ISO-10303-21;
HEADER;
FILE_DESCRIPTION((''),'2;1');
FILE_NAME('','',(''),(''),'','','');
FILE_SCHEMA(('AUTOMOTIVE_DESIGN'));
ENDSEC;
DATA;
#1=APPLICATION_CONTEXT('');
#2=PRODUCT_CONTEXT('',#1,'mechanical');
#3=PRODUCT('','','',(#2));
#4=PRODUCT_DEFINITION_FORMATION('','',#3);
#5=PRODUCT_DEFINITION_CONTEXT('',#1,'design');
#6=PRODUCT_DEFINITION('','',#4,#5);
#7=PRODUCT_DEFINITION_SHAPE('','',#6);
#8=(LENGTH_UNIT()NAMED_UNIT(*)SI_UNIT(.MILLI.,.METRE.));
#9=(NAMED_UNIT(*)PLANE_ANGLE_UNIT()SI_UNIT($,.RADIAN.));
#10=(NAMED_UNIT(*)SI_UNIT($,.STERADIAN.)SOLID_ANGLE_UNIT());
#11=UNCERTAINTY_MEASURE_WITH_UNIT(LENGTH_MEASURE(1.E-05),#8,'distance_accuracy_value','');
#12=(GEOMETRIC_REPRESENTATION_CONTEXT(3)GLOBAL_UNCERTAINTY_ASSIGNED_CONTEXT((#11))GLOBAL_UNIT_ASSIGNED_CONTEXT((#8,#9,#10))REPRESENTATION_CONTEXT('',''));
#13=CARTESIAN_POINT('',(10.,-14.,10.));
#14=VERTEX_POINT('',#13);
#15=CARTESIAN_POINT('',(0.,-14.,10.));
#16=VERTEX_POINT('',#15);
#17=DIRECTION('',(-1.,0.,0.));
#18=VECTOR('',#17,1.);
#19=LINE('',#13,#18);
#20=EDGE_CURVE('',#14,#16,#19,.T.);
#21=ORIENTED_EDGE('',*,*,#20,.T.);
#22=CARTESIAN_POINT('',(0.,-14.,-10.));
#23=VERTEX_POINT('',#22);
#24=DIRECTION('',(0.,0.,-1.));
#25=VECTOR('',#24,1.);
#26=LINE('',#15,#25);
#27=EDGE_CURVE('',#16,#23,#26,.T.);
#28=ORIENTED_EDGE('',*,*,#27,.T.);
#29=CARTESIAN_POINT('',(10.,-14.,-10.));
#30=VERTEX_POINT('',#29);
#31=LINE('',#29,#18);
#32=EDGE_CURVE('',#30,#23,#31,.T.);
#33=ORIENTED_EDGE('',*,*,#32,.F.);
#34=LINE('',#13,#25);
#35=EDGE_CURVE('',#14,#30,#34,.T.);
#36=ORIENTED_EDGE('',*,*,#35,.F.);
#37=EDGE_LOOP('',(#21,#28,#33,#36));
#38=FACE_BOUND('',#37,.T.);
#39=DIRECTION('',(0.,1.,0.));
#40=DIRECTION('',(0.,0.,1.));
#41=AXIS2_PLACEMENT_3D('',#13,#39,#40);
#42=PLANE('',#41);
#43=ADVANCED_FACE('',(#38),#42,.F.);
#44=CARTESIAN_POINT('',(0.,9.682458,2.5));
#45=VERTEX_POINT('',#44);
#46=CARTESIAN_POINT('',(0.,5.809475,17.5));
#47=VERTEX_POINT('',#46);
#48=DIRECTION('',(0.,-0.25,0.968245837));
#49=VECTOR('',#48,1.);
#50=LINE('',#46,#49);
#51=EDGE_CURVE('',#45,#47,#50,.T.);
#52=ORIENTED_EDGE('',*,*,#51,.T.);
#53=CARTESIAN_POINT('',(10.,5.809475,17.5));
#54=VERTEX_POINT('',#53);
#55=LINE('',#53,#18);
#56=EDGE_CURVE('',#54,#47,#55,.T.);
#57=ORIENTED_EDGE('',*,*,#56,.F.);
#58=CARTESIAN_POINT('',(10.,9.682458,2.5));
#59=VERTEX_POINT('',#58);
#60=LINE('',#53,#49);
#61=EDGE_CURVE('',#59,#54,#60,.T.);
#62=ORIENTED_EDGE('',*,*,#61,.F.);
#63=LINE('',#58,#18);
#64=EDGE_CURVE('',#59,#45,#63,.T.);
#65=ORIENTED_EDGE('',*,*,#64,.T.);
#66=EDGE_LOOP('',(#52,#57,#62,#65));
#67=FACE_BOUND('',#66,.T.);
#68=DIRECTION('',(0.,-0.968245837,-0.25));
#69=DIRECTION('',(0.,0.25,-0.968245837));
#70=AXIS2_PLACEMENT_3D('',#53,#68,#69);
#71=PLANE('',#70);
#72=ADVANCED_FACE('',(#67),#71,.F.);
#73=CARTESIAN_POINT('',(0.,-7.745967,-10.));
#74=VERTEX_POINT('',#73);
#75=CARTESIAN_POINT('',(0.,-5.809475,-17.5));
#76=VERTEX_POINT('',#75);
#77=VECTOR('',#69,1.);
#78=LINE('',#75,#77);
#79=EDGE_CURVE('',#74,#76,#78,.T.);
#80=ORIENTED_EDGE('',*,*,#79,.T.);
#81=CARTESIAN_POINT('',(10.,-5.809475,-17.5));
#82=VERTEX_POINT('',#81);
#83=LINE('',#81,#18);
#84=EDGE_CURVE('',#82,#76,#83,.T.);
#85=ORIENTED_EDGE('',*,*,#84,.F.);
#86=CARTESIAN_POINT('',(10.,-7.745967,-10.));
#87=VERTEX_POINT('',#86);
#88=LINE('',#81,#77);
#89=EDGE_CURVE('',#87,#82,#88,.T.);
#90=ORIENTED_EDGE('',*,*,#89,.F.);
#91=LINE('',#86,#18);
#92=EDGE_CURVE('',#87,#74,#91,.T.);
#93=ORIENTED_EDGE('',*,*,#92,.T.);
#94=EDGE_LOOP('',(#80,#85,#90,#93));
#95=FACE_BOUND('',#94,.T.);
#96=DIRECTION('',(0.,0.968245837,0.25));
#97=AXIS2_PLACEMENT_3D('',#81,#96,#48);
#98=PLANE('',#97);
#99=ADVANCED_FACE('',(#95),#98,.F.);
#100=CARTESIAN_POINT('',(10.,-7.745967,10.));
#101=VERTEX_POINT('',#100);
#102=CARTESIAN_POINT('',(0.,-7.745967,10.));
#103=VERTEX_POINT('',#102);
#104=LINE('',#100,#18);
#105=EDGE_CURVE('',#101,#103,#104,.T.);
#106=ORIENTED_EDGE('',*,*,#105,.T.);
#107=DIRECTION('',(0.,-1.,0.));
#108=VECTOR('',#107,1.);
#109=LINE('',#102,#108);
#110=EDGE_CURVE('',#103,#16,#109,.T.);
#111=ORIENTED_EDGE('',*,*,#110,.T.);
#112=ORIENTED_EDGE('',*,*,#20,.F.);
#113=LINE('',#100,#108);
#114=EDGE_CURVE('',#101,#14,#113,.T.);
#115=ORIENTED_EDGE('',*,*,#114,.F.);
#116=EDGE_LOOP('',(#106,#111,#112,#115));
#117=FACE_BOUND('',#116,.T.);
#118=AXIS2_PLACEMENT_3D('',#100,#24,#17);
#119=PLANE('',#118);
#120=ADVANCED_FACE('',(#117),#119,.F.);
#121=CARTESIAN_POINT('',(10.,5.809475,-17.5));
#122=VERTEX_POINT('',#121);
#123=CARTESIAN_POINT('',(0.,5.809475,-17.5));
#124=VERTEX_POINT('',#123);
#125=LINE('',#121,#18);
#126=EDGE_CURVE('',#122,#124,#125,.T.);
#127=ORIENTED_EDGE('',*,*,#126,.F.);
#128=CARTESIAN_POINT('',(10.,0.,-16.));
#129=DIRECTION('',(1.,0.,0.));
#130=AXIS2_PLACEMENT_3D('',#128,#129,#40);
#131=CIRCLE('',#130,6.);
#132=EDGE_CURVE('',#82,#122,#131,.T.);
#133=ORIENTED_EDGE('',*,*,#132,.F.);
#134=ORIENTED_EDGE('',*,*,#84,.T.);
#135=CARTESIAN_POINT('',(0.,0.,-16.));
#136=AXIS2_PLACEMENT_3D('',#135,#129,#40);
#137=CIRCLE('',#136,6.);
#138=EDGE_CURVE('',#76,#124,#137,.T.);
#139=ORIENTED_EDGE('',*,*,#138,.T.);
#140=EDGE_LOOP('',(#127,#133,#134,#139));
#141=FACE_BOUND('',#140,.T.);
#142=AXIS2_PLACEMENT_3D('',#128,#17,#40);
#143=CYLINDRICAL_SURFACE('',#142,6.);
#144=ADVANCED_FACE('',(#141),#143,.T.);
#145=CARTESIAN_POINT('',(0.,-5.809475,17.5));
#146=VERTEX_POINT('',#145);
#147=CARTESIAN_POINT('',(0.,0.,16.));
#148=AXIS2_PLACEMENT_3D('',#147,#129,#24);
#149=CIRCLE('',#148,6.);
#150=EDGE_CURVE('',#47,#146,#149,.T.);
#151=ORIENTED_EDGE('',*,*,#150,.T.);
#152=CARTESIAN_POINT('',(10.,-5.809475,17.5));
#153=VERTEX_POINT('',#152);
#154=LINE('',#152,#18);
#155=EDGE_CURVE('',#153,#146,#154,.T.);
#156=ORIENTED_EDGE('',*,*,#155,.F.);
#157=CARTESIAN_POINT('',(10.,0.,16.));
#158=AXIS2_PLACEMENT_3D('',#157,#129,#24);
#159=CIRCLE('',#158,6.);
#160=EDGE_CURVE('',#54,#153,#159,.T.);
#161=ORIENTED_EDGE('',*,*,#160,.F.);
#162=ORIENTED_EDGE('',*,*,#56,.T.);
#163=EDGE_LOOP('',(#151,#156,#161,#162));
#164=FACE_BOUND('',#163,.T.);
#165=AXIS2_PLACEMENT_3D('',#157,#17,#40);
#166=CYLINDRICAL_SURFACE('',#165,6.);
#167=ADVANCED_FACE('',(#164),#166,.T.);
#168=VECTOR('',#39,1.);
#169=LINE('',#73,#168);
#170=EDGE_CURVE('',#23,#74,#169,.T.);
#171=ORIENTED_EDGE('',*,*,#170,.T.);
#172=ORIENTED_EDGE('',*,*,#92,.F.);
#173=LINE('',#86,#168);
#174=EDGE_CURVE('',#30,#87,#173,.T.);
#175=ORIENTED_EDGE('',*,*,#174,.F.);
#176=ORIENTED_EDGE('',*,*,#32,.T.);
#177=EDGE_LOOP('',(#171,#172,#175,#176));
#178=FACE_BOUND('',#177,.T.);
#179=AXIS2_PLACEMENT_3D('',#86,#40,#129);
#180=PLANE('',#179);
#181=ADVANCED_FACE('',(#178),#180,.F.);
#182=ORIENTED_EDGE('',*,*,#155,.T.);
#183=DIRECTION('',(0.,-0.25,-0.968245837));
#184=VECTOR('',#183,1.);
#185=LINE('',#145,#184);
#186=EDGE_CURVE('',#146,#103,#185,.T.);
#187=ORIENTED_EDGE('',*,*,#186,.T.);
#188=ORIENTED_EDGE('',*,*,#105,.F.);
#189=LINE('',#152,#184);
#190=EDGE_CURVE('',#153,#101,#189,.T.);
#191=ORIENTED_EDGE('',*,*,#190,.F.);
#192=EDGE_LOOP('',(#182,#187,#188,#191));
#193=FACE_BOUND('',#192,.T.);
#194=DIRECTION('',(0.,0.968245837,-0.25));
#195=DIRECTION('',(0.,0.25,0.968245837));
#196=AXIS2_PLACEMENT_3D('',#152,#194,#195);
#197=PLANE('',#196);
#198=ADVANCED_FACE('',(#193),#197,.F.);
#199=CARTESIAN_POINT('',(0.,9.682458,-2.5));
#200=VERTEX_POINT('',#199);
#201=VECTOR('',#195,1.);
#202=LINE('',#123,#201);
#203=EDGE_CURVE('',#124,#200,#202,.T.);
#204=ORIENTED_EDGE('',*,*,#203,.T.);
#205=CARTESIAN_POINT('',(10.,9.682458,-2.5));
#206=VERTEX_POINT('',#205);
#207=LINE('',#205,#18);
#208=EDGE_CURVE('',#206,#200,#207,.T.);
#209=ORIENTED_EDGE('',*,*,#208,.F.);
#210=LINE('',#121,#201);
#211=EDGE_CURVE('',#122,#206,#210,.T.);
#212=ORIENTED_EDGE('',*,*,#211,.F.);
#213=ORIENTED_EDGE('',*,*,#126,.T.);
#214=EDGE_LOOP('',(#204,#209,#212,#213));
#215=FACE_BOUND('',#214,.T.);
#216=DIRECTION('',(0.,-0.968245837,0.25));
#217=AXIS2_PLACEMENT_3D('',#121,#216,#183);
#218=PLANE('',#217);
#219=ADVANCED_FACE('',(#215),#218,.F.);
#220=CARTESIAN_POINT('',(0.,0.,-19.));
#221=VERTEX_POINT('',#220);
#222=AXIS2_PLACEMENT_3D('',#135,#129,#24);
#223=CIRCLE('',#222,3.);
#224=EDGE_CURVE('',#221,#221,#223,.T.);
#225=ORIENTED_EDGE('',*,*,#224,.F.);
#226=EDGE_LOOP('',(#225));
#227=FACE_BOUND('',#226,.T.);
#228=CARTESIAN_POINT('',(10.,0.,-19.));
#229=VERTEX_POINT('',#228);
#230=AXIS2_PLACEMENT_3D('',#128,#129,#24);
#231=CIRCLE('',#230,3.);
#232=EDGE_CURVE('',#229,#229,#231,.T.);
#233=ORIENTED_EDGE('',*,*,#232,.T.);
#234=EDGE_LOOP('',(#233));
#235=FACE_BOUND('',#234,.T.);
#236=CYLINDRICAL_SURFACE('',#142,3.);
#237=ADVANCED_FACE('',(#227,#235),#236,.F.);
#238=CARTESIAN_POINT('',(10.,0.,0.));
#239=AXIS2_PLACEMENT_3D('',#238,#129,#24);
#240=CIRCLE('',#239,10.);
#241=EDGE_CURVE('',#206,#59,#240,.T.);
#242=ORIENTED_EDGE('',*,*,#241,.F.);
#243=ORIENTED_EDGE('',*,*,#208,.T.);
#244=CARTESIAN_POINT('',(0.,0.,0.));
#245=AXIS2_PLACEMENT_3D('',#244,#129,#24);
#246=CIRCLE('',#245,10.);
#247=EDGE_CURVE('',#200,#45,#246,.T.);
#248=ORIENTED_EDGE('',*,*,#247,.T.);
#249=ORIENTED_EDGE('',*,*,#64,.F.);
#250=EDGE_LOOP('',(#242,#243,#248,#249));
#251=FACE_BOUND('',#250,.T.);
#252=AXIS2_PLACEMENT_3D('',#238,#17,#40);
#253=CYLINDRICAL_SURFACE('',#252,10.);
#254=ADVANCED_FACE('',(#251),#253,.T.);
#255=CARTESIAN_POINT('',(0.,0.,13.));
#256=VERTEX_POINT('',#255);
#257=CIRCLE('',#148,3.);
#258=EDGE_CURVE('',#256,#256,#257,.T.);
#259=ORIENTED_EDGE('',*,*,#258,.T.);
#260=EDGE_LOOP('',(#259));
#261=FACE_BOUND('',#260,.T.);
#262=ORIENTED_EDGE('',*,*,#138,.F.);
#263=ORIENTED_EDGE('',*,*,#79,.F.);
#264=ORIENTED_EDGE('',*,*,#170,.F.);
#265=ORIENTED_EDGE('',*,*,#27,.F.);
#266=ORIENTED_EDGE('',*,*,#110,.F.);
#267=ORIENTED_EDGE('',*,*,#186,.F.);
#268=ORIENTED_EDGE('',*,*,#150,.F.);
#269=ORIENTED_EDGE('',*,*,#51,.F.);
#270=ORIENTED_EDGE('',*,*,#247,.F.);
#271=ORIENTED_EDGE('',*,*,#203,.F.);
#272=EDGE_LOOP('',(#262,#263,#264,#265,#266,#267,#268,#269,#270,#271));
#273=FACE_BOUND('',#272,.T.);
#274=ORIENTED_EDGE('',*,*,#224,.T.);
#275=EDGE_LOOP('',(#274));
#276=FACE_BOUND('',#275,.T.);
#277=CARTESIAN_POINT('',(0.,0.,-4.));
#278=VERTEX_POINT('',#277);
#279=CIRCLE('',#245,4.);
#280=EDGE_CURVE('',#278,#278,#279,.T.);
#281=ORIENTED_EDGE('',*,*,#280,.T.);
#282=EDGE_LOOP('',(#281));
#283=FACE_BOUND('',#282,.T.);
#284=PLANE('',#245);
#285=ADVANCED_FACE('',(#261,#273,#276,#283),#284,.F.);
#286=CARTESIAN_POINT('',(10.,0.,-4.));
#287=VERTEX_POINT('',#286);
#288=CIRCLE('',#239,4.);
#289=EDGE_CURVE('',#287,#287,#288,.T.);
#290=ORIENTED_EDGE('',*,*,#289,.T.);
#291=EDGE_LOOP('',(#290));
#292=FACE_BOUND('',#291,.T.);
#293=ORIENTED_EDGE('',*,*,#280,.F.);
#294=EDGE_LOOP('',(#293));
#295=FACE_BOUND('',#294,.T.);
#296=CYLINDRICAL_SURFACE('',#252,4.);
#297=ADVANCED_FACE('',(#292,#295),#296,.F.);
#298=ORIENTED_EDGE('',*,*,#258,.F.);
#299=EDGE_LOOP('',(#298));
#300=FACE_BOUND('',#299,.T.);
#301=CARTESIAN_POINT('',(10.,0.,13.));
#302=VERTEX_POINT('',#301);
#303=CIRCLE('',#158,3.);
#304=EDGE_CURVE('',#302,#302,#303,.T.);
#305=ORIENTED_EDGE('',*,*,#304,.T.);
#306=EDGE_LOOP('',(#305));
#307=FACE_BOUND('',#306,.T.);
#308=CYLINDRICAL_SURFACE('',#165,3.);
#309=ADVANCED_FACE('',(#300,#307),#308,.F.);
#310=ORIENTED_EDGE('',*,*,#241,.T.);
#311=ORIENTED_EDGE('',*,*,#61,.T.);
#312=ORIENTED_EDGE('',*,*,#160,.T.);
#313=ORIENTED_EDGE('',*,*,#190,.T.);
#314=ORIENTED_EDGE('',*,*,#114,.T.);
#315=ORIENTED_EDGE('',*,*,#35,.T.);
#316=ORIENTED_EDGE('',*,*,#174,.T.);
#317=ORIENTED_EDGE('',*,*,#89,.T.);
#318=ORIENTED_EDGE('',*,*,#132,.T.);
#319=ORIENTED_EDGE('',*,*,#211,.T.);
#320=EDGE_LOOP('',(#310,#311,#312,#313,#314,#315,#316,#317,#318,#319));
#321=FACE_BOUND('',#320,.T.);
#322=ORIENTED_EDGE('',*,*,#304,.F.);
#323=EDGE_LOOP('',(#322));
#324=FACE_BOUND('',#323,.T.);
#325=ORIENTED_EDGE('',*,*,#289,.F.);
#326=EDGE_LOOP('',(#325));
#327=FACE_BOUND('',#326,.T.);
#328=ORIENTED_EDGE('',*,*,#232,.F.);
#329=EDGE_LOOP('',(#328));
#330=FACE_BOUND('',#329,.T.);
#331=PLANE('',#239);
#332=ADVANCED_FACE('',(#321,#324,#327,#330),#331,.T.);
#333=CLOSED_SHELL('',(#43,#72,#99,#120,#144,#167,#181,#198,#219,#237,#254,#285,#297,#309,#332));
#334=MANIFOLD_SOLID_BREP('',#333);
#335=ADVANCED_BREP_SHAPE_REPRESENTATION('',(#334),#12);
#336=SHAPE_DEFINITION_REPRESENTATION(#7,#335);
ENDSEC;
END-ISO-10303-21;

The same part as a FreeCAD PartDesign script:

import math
import FreeCAD as App
import Part
import Sketcher
from FreeCAD import Vector

doc = App.newDocument("Part")
body = doc.addObject("PartDesign::Body", "Body")

# Sketch on YZ plane
sketch1 = body.newObject("Sketcher::SketchObject", "Sketch")
sketch1.AttachmentSupport = (doc.getObject("YZ_Plane"), [""])
sketch1.MapMode = "FlatFace"
sketch1.addGeometry([
    Part.LineSegment(Vector(-7.7, 10, 0), Vector(-14, 10, 0)),  # 0
    Part.LineSegment(Vector(-14, 10, 0), Vector(-14, -10, 0)),  # 1
    Part.LineSegment(Vector(-14, -10, 0), Vector(-7.7, -10, 0)),  # 2
    Part.LineSegment(Vector(-7.7, -10, 0), Vector(-5.8, -17.5, 0)),  # 3
    Part.ArcOfCircle(Part.Circle(Vector(0, -16, 0), Vector(0, 0, 1), 6), math.radians(-166), math.radians(-14)),  # 4
    Part.LineSegment(Vector(5.8, -17.5, 0), Vector(9.7, -2.5, 0)),  # 5
    Part.ArcOfCircle(Part.Circle(Vector(0, 0, 0), Vector(0, 0, 1), 10), math.radians(-14), math.radians(14)),  # 6
    Part.LineSegment(Vector(9.7, 2.5, 0), Vector(5.8, 17.5, 0)),  # 7
    Part.ArcOfCircle(Part.Circle(Vector(0, 16, 0), Vector(0, 0, 1), 6), math.radians(14), math.radians(166)),  # 8
    Part.LineSegment(Vector(-5.8, 17.5, 0), Vector(-7.7, 10, 0)),  # 9
    Part.Circle(Vector(0, 16, 0), Vector(0, 0, 1), 3),  # 10
    Part.Circle(Vector(0, 0, 0), Vector(0, 0, 1), 4),  # 11
    Part.Circle(Vector(0, -16, 0), Vector(0, 0, 1), 3),  # 12
], False)
sketch1.addConstraint([
    Sketcher.Constraint("Coincident", 0, 2, 1, 1),
    Sketcher.Constraint("Coincident", 1, 2, 2, 1),
    Sketcher.Constraint("Coincident", 2, 2, 3, 1),
    Sketcher.Constraint("Tangent", 3, 2, 4, 1),
    Sketcher.Constraint("Tangent", 4, 2, 5, 1),
    Sketcher.Constraint("Tangent", 5, 2, 6, 1),
    Sketcher.Constraint("Tangent", 6, 2, 7, 1),
    Sketcher.Constraint("Tangent", 7, 2, 8, 1),
    Sketcher.Constraint("Tangent", 8, 2, 9, 1),
    Sketcher.Constraint("Coincident", 9, 2, 0, 1),
    Sketcher.Constraint("Horizontal", 0),
    Sketcher.Constraint("Vertical", 1),
    Sketcher.Constraint("Horizontal", 2),
    Sketcher.Constraint("Coincident", 6, 3, -1, 1),
    Sketcher.Constraint("Coincident", 11, 3, -1, 1),
    Sketcher.Constraint("Coincident", 10, 3, 8, 3),
    Sketcher.Constraint("Coincident", 12, 3, 4, 3),
    Sketcher.Constraint("Equal", 4, 8),
    Sketcher.Constraint("Equal", 10, 12),
    Sketcher.Constraint("Symmetric", 4, 3, 8, 3, -1, 1),
    Sketcher.Constraint("Symmetric", 3, 2, 4, 2, -2),
    Sketcher.Constraint("Symmetric", 2, 2, 9, 2, -1),
    Sketcher.Constraint("Diameter", 10, 6.0),
    Sketcher.Constraint("Diameter", 11, 8.0),
    Sketcher.Constraint("Radius", 4, 6.0),
    Sketcher.Constraint("Radius", 6, 10.0),
    Sketcher.Constraint("DistanceY", 1, 2, 1, 1, 20.0),
    Sketcher.Constraint("DistanceY", 4, 3, -1, 1, 16.0),
    Sketcher.Constraint("DistanceX", 0, 2, -1, 1, 14.0),
])
pad1 = body.newObject("PartDesign::Pad", "Pad")
pad1.Profile = sketch1
pad1.Length = 10

doc.recompute()
